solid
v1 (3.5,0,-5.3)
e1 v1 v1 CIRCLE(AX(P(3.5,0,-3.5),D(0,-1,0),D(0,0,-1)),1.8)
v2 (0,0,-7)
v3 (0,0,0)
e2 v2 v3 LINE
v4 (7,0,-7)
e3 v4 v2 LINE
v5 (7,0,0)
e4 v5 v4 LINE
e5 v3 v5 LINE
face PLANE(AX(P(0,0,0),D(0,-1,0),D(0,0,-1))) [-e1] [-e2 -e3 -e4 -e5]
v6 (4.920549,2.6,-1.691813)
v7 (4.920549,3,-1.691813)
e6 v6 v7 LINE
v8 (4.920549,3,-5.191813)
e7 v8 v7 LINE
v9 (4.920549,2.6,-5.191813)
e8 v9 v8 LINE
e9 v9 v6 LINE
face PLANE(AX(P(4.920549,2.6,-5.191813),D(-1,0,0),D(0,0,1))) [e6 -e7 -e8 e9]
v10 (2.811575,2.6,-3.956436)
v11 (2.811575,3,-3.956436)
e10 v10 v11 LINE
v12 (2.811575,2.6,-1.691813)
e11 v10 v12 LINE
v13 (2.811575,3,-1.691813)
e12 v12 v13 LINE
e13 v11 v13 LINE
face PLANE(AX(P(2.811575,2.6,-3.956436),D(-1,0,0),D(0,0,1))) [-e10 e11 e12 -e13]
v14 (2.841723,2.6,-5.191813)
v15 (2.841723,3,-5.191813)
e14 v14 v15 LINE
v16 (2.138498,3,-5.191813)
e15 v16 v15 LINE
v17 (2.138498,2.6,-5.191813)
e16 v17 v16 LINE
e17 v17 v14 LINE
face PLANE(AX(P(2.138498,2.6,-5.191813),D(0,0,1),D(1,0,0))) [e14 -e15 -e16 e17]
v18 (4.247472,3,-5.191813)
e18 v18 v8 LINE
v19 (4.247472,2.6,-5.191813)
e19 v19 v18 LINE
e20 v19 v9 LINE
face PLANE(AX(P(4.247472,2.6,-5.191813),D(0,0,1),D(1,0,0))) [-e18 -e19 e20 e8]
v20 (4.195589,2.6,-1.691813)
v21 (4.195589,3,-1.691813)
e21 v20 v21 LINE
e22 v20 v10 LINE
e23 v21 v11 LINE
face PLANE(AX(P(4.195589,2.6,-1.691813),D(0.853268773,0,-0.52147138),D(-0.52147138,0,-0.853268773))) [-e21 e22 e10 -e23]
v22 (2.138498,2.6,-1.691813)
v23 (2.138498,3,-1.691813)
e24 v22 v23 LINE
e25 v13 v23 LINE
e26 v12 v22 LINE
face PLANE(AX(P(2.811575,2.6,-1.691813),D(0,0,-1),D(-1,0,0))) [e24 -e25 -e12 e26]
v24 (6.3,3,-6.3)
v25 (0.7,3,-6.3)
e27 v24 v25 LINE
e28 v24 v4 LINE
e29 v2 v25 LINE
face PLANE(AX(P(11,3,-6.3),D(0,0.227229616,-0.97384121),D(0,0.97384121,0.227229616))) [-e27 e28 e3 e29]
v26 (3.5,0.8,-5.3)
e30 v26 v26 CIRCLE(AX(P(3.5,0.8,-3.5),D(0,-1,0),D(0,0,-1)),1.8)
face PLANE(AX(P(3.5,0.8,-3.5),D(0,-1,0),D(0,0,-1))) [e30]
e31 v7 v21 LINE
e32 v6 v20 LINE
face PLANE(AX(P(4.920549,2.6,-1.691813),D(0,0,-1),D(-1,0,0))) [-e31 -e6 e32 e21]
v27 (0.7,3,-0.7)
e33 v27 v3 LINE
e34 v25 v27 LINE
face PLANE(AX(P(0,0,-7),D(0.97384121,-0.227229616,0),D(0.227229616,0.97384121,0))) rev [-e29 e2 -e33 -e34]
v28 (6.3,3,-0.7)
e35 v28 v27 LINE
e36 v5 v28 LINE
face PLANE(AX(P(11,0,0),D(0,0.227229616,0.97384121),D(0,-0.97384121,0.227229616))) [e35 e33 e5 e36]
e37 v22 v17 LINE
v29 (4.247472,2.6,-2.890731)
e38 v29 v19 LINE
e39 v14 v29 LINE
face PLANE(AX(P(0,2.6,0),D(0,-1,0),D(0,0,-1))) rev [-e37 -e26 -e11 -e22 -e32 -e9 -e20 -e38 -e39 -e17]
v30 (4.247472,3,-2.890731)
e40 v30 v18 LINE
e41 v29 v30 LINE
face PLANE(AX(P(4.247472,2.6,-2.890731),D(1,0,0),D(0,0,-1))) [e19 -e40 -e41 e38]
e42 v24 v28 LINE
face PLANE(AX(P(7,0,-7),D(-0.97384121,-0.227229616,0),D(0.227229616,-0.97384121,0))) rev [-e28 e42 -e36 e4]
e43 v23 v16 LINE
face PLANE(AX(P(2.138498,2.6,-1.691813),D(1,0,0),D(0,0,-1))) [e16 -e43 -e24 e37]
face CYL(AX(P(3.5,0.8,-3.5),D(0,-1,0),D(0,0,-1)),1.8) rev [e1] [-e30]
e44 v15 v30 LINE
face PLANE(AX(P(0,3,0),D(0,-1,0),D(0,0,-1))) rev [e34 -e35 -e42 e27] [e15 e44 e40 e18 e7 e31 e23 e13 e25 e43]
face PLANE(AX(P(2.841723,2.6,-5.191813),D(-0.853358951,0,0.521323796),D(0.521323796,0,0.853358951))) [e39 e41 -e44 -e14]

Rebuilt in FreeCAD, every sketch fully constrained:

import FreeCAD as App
import Part
import Sketcher

doc = App.newDocument("Part")
body = doc.addObject("PartDesign::Body", "Body")

sketch1 = body.newObject("Sketcher::SketchObject", "Sketch")
sketch1.AttachmentSupport = (doc.getObject("XZ_Plane"), [""])
sketch1.MapMode = "FlatFace"
sketch1.addGeometry(Part.LineSegment(App.Vector(0, -7, 0), App.Vector(0, 0, 0)), False)
sketch1.addGeometry(Part.LineSegment(App.Vector(0, 0, 0), App.Vector(7, 0, 0)), False)
sketch1.addGeometry(Part.LineSegment(App.Vector(7, 0, 0), App.Vector(7, -7, 0)), False)
sketch1.addGeometry(Part.LineSegment(App.Vector(7, -7, 0), App.Vector(0, -7, 0)), False)
sketch1.addConstraint(Sketcher.Constraint("Coincident", 0, 2, 1, 1))
sketch1.addConstraint(Sketcher.Constraint("Coincident", 1, 2, 2, 1))
sketch1.addConstraint(Sketcher.Constraint("Coincident", 2, 2, 3, 1))
sketch1.addConstraint(Sketcher.Constraint("Coincident", 3, 2, 0, 1))
sketch1.addConstraint(Sketcher.Constraint("Vertical", 0))
sketch1.addConstraint(Sketcher.Constraint("Horizontal", 1))
sketch1.addConstraint(Sketcher.Constraint("Vertical", 2))
sketch1.addConstraint(Sketcher.Constraint("Horizontal", 3))
sketch1.addConstraint(Sketcher.Constraint("Coincident", 0, 2, -1, 1))
sketch1.addConstraint(Sketcher.Constraint("Equal", 3, 0))
sketch1.addConstraint(Sketcher.Constraint("DistanceX", 1, 1, 1, 2, 7.0))
pad1 = body.newObject("PartDesign::Pad", "Pad")
pad1.Profile = sketch1
pad1.Length = 3
pad1.Reversed = True

sketch2 = body.newObject("Sketcher::SketchObject", "Sketch001")
sketch2.AttachmentSupport = (doc.getObject("XY_Plane"), [""])
sketch2.MapMode = "FlatFace"
sketch2.addGeometry(Part.LineSegment(App.Vector(0, 0, 0), App.Vector(0.7, 3, 0)), False)
sketch2.addGeometry(Part.LineSegment(App.Vector(0.7, 3, 0), App.Vector(0, 3, 0)), False)
sketch2.addGeometry(Part.LineSegment(App.Vector(0, 3, 0), App.Vector(0, 0, 0)), False)
sketch2.addGeometry(Part.LineSegment(App.Vector(6.3, 3, 0), App.Vector(7, 0, 0)), False)
sketch2.addGeometry(Part.LineSegment(App.Vector(7, 0, 0), App.Vector(7, 3, 0)), False)
sketch2.addGeometry(Part.LineSegment(App.Vector(7, 3, 0), App.Vector(6.3, 3, 0)), False)
sketch2.addConstraint(Sketcher.Constraint("Coincident", 0, 2, 1, 1))
sketch2.addConstraint(Sketcher.Constraint("Coincident", 1, 2, 2, 1))
sketch2.addConstraint(Sketcher.Constraint("Coincident", 2, 2, 0, 1))
sketch2.addConstraint(Sketcher.Constraint("Coincident", 3, 2, 4, 1))
sketch2.addConstraint(Sketcher.Constraint("Coincident", 4, 2, 5, 1))
sketch2.addConstraint(Sketcher.Constraint("Coincident", 5, 2, 3, 1))
sketch2.addConstraint(Sketcher.Constraint("Horizontal", 1))
sketch2.addConstraint(Sketcher.Constraint("Vertical", 2))
sketch2.addConstraint(Sketcher.Constraint("Vertical", 4))
sketch2.addConstraint(Sketcher.Constraint("Horizontal", 5))
sketch2.addConstraint(Sketcher.Constraint("Coincident", 2, 2, -1, 1))
sketch2.addConstraint(Sketcher.Constraint("PointOnObject", 3, 2, -1))
sketch2.addConstraint(Sketcher.Constraint("Horizontal", 1, 2, 4, 2))
sketch2.addConstraint(Sketcher.Constraint("Equal", 1, 5))
sketch2.addConstraint(Sketcher.Constraint("DistanceY", 2, 2, 2, 1, 3.0))
sketch2.addConstraint(Sketcher.Constraint("DistanceX", 1, 2, 1, 1, 0.7))
sketch2.addConstraint(Sketcher.Constraint("DistanceX", -1, 1, 3, 2, 7.0))
pocket1 = body.newObject("PartDesign::Pocket", "Pocket")
pocket1.Profile = sketch2
pocket1.Length = 7

sketch3 = body.newObject("Sketcher::SketchObject", "Sketch002")
sketch3.AttachmentSupport = (doc.getObject("YZ_Plane"), [""])
sketch3.MapMode = "FlatFace"
sketch3.addGeometry(Part.LineSegment(App.Vector(0, 0, 0), App.Vector(3, -0.7, 0)), False)
sketch3.addGeometry(Part.LineSegment(App.Vector(3, -0.7, 0), App.Vector(3, 0, 0)), False)
sketch3.addGeometry(Part.LineSegment(App.Vector(3, 0, 0), App.Vector(0, 0, 0)), False)
sketch3.addGeometry(Part.LineSegment(App.Vector(3, -7, 0), App.Vector(3, -6.3, 0)), False)
sketch3.addGeometry(Part.LineSegment(App.Vector(3, -6.3, 0), App.Vector(0, -7, 0)), False)
sketch3.addGeometry(Part.LineSegment(App.Vector(0, -7, 0), App.Vector(3, -7, 0)), False)
sketch3.addConstraint(Sketcher.Constraint("Coincident", 0, 2, 1, 1))
sketch3.addConstraint(Sketcher.Constraint("Coincident", 1, 2, 2, 1))
sketch3.addConstraint(Sketcher.Constraint("Coincident", 2, 2, 0, 1))
sketch3.addConstraint(Sketcher.Constraint("Coincident", 3, 2, 4, 1))
sketch3.addConstraint(Sketcher.Constraint("Coincident", 4, 2, 5, 1))
sketch3.addConstraint(Sketcher.Constraint("Coincident", 5, 2, 3, 1))
sketch3.addConstraint(Sketcher.Constraint("Vertical", 1))
sketch3.addConstraint(Sketcher.Constraint("Horizontal", 2))
sketch3.addConstraint(Sketcher.Constraint("Vertical", 3))
sketch3.addConstraint(Sketcher.Constraint("Horizontal", 5))
sketch3.addConstraint(Sketcher.Constraint("Coincident", 2, 2, -1, 1))
sketch3.addConstraint(Sketcher.Constraint("PointOnObject", 4, 2, -2))
sketch3.addConstraint(Sketcher.Constraint("Vertical", 1, 2, 3, 2))
sketch3.addConstraint(Sketcher.Constraint("Equal", 1, 3))
sketch3.addConstraint(Sketcher.Constraint("DistanceX", 2, 2, 2, 1, 3.0))
sketch3.addConstraint(Sketcher.Constraint("DistanceY", 1, 1, 1, 2, 0.7))
sketch3.addConstraint(Sketcher.Constraint("DistanceY", 4, 2, -1, 1, 7.0))
pocket2 = body.newObject("PartDesign::Pocket", "Pocket001")
pocket2.Profile = sketch3
pocket2.Length = 11
pocket2.Reversed = True

sketch4 = body.newObject("Sketcher::SketchObject", "Sketch003")
sketch4.AttachmentSupport = (doc.getObject("XZ_Plane"), [""])
sketch4.MapMode = "FlatFace"
sketch4.addGeometry(Part.Circle(App.Vector(3.5, -3.5, 0), App.Vector(0, 0, 1), 1.8), False)
sketch4.addConstraint(Sketcher.Constraint("Diameter", 0, 3.6))
sketch4.addConstraint(Sketcher.Constraint("DistanceX", -1, 1, 0, 3, 3.5))
sketch4.addConstraint(Sketcher.Constraint("DistanceY", 0, 3, -1, 1, 3.5))
pocket3 = body.newObject("PartDesign::Pocket", "Pocket002")
pocket3.Profile = sketch4
pocket3.Length = 0.8

sketch5 = body.newObject("Sketcher::SketchObject", "Sketch004")
sketch5.AttachmentSupport = (doc.getObject("XZ_Plane"), [""])
sketch5.MapMode = "FlatFace"
sketch5.AttachmentOffset = App.Placement(App.Vector(0, 0, -3), App.Rotation())
sketch5.addGeometry(Part.LineSegment(App.Vector(2.1, -5.2, 0), App.Vector(2.1, -1.7, 0)), False)
sketch5.addGeometry(Part.LineSegment(App.Vector(2.1, -1.7, 0), App.Vector(2.8, -1.7, 0)), False)
sketch5.addGeometry(Part.LineSegment(App.Vector(2.8, -1.7, 0), App.Vector(2.8, -4, 0)), False)
sketch5.addGeometry(Part.LineSegment(App.Vector(2.8, -4, 0), App.Vector(4.2, -1.7, 0)), False)
sketch5.addGeometry(Part.LineSegment(App.Vector(4.2, -1.7, 0), App.Vector(4.9, -1.7, 0)), False)
sketch5.addGeometry(Part.LineSegment(App.Vector(4.9, -1.7, 0), App.Vector(4.9, -5.2, 0)), False)
sketch5.addGeometry(Part.LineSegment(App.Vector(4.9, -5.2, 0), App.Vector(4.2, -5.2, 0)), False)
sketch5.addGeometry(Part.LineSegment(App.Vector(4.2, -5.2, 0), App.Vector(4.2, -2.9, 0)), False)
sketch5.addGeometry(Part.LineSegment(App.Vector(4.2, -2.9, 0), App.Vector(2.8, -5.2, 0)), False)
sketch5.addGeometry(Part.LineSegment(App.Vector(2.8, -5.2, 0), App.Vector(2.1, -5.2, 0)), False)
sketch5.addConstraint(Sketcher.Constraint("Coincident", 0, 2, 1, 1))
sketch5.addConstraint(Sketcher.Constraint("Coincident", 1, 2, 2, 1))
sketch5.addConstraint(Sketcher.Constraint("Coincident", 2, 2, 3, 1))
sketch5.addConstraint(Sketcher.Constraint("Coincident", 3, 2, 4, 1))
sketch5.addConstraint(Sketcher.Constraint("Coincident", 4, 2, 5, 1))
sketch5.addConstraint(Sketcher.Constraint("Coincident", 5, 2, 6, 1))
sketch5.addConstraint(Sketcher.Constraint("Coincident", 6, 2, 7, 1))
sketch5.addConstraint(Sketcher.Constraint("Coincident", 7, 2, 8, 1))
sketch5.addConstraint(Sketcher.Constraint("Coincident", 8, 2, 9, 1))
sketch5.addConstraint(Sketcher.Constraint("Coincident", 9, 2, 0, 1))
sketch5.addConstraint(Sketcher.Constraint("Vertical", 0))
sketch5.addConstraint(Sketcher.Constraint("Horizontal", 1))
sketch5.addConstraint(Sketcher.Constraint("Vertical", 2))
sketch5.addConstraint(Sketcher.Constraint("Horizontal", 4))
sketch5.addConstraint(Sketcher.Constraint("Vertical", 5))
sketch5.addConstraint(Sketcher.Constraint("Horizontal", 6))
sketch5.addConstraint(Sketcher.Constraint("Vertical", 7))
sketch5.addConstraint(Sketcher.Constraint("Horizontal", 9))
sketch5.addConstraint(Sketcher.Constraint("Horizontal", 1, 2, 3, 2))
sketch5.addConstraint(Sketcher.Constraint("Horizontal", 6, 2, 8, 2))
sketch5.addConstraint(Sketcher.Constraint("Equal", 1, 6))
sketch5.addConstraint(Sketcher.Constraint("DistanceY", 0, 1, 0, 2, 3.5))
sketch5.addConstraint(Sketcher.Constraint("Distance", 8, 2.696499))
sketch5.addConstraint(Sketcher.Constraint("DistanceX", 4, 1, 4, 2, 0.72496))
sketch5.addConstraint(Sketcher.Constraint("DistanceY", 7, 1, 7, 2, 2.301082))
sketch5.addConstraint(Sketcher.Constraint("DistanceX", 1, 1, 1, 2, 0.673077))
sketch5.addConstraint(Sketcher.Constraint("DistanceX", 9, 2, 9, 1, 0.703225))
sketch5.addConstraint(Sketcher.Constraint("DistanceY", 2, 2, 2, 1, 2.264623))
sketch5.addConstraint(Sketcher.Constraint("DistanceX", -1, 1, 3, 2, 4.195589))
sketch5.addConstraint(Sketcher.Constraint("DistanceY", 7, 2, -1, 1, 2.890731))
pocket4 = body.newObject("PartDesign::Pocket", "Pocket003")
pocket4.Profile = sketch5
pocket4.Length = 0.4
pocket4.Reversed = True

doc.recompute()
